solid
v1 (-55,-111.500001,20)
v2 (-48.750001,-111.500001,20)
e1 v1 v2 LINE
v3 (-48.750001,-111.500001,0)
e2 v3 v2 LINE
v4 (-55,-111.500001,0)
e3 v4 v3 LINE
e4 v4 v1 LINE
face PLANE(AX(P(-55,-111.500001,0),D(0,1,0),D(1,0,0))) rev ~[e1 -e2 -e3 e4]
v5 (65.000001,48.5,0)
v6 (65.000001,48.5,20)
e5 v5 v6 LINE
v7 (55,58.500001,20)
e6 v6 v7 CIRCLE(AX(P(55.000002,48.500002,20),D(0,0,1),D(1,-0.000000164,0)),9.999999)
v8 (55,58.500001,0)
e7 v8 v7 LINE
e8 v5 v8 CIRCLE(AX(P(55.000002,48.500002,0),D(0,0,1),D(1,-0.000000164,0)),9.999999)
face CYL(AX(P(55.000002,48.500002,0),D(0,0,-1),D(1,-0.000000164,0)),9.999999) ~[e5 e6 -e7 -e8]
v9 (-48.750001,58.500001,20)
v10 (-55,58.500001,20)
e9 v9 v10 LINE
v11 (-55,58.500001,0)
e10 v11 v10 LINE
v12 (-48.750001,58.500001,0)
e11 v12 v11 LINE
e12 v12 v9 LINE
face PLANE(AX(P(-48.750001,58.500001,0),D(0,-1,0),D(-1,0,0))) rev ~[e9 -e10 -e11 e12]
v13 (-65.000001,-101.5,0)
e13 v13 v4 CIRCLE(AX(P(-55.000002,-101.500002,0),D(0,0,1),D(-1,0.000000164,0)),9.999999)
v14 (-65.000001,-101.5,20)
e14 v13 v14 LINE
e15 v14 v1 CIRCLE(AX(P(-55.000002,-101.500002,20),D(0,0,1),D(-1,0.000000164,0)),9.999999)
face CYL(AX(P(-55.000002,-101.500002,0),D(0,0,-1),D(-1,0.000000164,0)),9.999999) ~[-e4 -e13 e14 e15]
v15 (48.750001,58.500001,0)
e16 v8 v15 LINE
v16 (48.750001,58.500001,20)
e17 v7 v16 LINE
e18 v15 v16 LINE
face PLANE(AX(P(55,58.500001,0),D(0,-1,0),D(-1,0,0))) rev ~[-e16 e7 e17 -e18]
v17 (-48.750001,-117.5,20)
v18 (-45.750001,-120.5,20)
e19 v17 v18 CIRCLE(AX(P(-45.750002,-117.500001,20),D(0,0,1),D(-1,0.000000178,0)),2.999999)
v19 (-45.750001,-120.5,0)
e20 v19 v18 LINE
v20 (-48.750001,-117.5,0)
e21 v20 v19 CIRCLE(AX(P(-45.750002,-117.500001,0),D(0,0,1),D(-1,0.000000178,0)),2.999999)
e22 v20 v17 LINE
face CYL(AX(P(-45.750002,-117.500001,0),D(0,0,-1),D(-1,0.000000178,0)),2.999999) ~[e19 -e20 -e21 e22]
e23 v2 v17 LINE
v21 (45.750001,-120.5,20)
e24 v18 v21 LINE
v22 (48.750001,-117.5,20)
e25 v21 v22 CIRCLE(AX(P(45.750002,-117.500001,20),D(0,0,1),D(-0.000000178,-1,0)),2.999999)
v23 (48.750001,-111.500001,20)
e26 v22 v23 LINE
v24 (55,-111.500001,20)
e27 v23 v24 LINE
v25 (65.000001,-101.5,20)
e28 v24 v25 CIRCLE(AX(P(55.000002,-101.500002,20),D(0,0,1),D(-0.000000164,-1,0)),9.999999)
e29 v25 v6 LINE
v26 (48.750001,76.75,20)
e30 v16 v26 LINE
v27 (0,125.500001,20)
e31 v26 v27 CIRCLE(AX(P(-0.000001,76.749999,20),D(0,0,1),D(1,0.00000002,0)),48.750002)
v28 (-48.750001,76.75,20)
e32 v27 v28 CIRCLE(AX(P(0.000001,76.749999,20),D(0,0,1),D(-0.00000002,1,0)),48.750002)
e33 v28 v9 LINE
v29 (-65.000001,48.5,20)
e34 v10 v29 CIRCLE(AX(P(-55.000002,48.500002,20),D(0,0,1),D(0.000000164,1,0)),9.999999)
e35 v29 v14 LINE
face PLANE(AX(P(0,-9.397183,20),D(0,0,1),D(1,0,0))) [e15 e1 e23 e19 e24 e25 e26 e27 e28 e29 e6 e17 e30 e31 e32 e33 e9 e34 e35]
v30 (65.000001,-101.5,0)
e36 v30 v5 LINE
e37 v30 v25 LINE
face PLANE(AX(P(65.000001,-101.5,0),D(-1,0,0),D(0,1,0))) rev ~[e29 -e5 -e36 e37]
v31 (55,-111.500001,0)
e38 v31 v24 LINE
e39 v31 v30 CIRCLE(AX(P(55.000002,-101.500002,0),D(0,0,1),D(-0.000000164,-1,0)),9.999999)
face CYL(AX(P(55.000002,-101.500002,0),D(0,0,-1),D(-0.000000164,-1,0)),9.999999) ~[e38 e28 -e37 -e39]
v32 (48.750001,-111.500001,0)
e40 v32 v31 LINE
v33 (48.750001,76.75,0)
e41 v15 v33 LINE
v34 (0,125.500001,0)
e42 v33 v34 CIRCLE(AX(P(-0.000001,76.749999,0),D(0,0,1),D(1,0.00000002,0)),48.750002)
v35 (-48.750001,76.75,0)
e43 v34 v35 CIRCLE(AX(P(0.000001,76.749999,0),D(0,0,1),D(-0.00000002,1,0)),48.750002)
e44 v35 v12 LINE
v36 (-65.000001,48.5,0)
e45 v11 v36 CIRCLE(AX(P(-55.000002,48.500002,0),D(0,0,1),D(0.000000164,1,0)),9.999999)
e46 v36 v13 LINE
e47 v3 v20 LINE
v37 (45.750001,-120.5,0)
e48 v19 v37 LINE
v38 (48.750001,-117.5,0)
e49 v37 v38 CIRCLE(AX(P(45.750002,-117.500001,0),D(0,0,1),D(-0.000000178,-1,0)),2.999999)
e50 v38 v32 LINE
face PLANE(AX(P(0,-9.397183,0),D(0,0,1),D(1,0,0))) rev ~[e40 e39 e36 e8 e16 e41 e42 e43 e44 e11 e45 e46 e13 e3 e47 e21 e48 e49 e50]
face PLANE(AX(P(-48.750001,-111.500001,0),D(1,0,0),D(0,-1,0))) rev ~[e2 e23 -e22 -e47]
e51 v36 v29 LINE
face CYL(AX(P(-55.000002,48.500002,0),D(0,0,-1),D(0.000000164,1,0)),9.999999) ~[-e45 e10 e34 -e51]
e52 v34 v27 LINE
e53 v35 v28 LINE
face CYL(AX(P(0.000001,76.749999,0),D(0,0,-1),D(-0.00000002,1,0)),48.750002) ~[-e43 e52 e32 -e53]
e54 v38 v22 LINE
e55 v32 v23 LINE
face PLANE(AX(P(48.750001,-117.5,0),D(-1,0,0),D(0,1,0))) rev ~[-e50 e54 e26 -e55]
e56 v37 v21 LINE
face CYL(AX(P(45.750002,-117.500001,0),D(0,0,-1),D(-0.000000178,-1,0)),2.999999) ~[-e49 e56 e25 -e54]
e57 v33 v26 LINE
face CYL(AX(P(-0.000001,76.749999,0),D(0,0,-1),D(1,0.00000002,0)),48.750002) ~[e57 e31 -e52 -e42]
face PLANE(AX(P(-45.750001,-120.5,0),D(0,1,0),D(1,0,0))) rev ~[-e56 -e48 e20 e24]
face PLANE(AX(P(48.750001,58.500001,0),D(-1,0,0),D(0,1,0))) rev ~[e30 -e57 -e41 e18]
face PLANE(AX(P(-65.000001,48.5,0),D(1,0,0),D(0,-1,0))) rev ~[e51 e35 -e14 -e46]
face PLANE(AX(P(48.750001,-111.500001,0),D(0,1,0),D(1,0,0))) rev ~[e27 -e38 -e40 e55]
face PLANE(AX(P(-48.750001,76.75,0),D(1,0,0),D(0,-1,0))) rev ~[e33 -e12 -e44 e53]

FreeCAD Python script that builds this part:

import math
import FreeCAD as App
import Part
import Sketcher
Q = App.Units.Quantity

doc = App.newDocument("Part")
body = doc.addObject("PartDesign::Body", "Body")

sketch1 = doc.addObject("Sketcher::SketchObject", "Sketch")
body.addObject(sketch1)
sketch1.AttachmentSupport = (doc.XY_Plane, [""])
sketch1.MapMode = "FlatFace"
sketch1.addGeometry([
    Part.ArcOfCircle(Part.Circle(App.Vector(45.750002, -117.500001, 0), App.Vector(0, 0, 1), 2.999999), math.radians(-90.00001), math.radians(0.00001)),
    Part.LineSegment(App.Vector(48.750001, -117.5, 0), App.Vector(48.750001, -111.500001, 0)),
    Part.LineSegment(App.Vector(48.750001, -111.500001, 0), App.Vector(55, -111.500001, 0)),
    Part.ArcOfCircle(Part.Circle(App.Vector(55.000002, -101.500002, 0), App.Vector(0, 0, 1), 9.999999), math.radians(-90.000009), math.radians(0.000009)),
    Part.LineSegment(App.Vector(65.000001, -101.5, 0), App.Vector(65.000001, 48.5, 0)),
    Part.ArcOfCircle(Part.Circle(App.Vector(55.000002, 48.500002, 0), App.Vector(0, 0, 1), 9.999999), math.radians(-0.000009), math.radians(90.000009)),
    Part.LineSegment(App.Vector(55, 58.500001, 0), App.Vector(48.750001, 58.500001, 0)),
    Part.LineSegment(App.Vector(48.750001, 58.500001, 0), App.Vector(48.750001, 76.75, 0)),
    Part.ArcOfCircle(Part.Circle(App.Vector(-0.000001, 76.749999, 0), App.Vector(0, 0, 1), 48.750002), math.radians(0.000001), math.radians(89.999999)),
    Part.ArcOfCircle(Part.Circle(App.Vector(0.000001, 76.749999, 0), App.Vector(0, 0, 1), 48.750002), math.radians(90.000001), math.radians(179.999999)),
    Part.LineSegment(App.Vector(-48.750001, 76.75, 0), App.Vector(-48.750001, 58.500001, 0)),
    Part.LineSegment(App.Vector(-48.750001, 58.500001, 0), App.Vector(-55, 58.500001, 0)),
    Part.ArcOfCircle(Part.Circle(App.Vector(-55.000002, 48.500002, 0), App.Vector(0, 0, 1), 9.999999), math.radians(89.999991), math.radians(180.000009)),
    Part.LineSegment(App.Vector(-65.000001, 48.5, 0), App.Vector(-65.000001, -101.5, 0)),
    Part.ArcOfCircle(Part.Circle(App.Vector(-55.000002, -101.500002, 0), App.Vector(0, 0, 1), 9.999999), math.radians(179.999991), math.radians(270.000009)),
    Part.LineSegment(App.Vector(-55, -111.500001, 0), App.Vector(-48.750001, -111.500001, 0)),
    Part.LineSegment(App.Vector(-48.750001, -111.500001, 0), App.Vector(-48.750001, -117.5, 0)),
    Part.ArcOfCircle(Part.Circle(App.Vector(-45.750002, -117.500001, 0), App.Vector(0, 0, 1), 2.999999), math.radians(179.99999), math.radians(270.00001)),
    Part.LineSegment(App.Vector(-45.750001, -120.5, 0), App.Vector(45.750001, -120.5, 0)),
], False)
sketch1.addConstraint([
    Sketcher.Constraint("Tangent", 0, 2, 1, 1),
    Sketcher.Constraint("Coincident", 1, 2, 2, 1),
    Sketcher.Constraint("Tangent", 2, 2, 3, 1),
    Sketcher.Constraint("Tangent", 3, 2, 4, 1),
    Sketcher.Constraint("Tangent", 4, 2, 5, 1),
    Sketcher.Constraint("Tangent", 5, 2, 6, 1),
    Sketcher.Constraint("Coincident", 6, 2, 7, 1),
    Sketcher.Constraint("Tangent", 7, 2, 8, 1),
    Sketcher.Constraint("Tangent", 8, 2, 9, 1),
    Sketcher.Constraint("Tangent", 9, 2, 10, 1),
    Sketcher.Constraint("Coincident", 10, 2, 11, 1),
    Sketcher.Constraint("Tangent", 11, 2, 12, 1),
    Sketcher.Constraint("Tangent", 12, 2, 13, 1),
    Sketcher.Constraint("Tangent", 13, 2, 14, 1),
    Sketcher.Constraint("Tangent", 14, 2, 15, 1),
    Sketcher.Constraint("Coincident", 15, 2, 16, 1),
    Sketcher.Constraint("Tangent", 16, 2, 17, 1),
    Sketcher.Constraint("Tangent", 17, 2, 18, 1),
    Sketcher.Constraint("Tangent", 18, 2, 0, 1),
    Sketcher.Constraint("Vertical", 1),
    Sketcher.Constraint("Horizontal", 2),
    Sketcher.Constraint("Vertical", 4),
    Sketcher.Constraint("Horizontal", 6),
    Sketcher.Constraint("Vertical", 7),
    Sketcher.Constraint("Vertical", 10),
    Sketcher.Constraint("Horizontal", 11),
    Sketcher.Constraint("Vertical", 13),
    Sketcher.Constraint("Horizontal", 15),
    Sketcher.Constraint("Vertical", 16),
    Sketcher.Constraint("Horizontal", 18),
    Sketcher.Constraint("Equal", 3, 5),
    Sketcher.Constraint("Equal", 8, 9),
    Sketcher.Constraint("Equal", 5, 12),
    Sketcher.Constraint("Equal", 12, 14),
    Sketcher.Constraint("Equal", 0, 17),
    Sketcher.Constraint("Symmetric", 5, 3, 12, 3, -2),
    Sketcher.Constraint("Symmetric", 1, 2, 15, 2, -2),
    Sketcher.Constraint("PointOnObject", 8, 3, -2),
    Sketcher.Constraint("PointOnObject", 8, 2, -2),
    Sketcher.Constraint("Vertical", 1, 2, 6, 2),
    Sketcher.Constraint("Radius", 0, Q("2.999999 mm")),
    Sketcher.Constraint("Radius", 3, Q("9.999999 mm")),
    Sketcher.Constraint("DistanceY", 1, 1, 1, 2, Q("5.999999 mm")),
    Sketcher.Constraint("DistanceY", 4, 1, 4, 2, Q("150 mm")),
    Sketcher.Constraint("Radius", 8, Q("48.750002 mm")),
    Sketcher.Constraint("DistanceX", -1, 1, 3, 3, Q("55.000002 mm")),
    Sketcher.Constraint("DistanceY", 6, 2, 8, 2, Q("67 mm")),
    Sketcher.Constraint("DistanceY", 0, 3, -1, 1, Q("117.500001 mm")),
])
pad1 = doc.addObject("PartDesign::Pad", "Pad")
body.addObject(pad1)
pad1.Profile = sketch1
pad1.Length = 20

doc.recompute()
